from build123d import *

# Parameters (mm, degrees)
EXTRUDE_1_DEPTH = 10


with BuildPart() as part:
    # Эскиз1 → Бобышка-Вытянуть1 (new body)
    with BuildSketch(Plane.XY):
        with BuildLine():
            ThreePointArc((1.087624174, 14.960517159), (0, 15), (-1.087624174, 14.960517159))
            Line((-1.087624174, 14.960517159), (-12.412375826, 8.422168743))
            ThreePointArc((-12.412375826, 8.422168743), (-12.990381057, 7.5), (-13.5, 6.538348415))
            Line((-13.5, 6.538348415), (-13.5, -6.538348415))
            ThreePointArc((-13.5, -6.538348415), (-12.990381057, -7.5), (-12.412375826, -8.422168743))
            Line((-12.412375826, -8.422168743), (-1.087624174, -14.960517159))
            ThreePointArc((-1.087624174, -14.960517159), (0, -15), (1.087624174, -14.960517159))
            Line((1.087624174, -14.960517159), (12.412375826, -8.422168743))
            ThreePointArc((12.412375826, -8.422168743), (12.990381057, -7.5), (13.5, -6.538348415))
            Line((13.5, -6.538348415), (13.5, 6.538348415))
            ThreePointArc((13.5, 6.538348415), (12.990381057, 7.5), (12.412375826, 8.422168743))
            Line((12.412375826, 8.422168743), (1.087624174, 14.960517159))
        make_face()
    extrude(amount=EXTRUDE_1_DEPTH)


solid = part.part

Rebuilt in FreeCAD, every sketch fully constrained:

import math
import FreeCAD as App
import Part
import Sketcher
Q = App.Units.Quantity

doc = App.newDocument("Part")
body = doc.addObject("PartDesign::Body", "Body")

sketch1 = body.newObject("Sketcher::SketchObject", "Sketch")
sketch1.AttachmentSupport = (doc.getObject("XY_Plane"), [""])
sketch1.MapMode = "FlatFace"
sketch1.addGeometry(Part.ArcOfCircle(Part.Circle(App.Vector(0, 0, 0), App.Vector(0, 0, 1), 15), math.radians(85.841933), math.radians(94.158067)), False)
sketch1.addGeometry(Part.LineSegment(App.Vector(-1.087624, 14.960517, 0), App.Vector(-12.412376, 8.422169, 0)), False)
sketch1.addGeometry(Part.ArcOfCircle(Part.Circle(App.Vector(0, 0, 0), App.Vector(0, 0, 1), 15), math.radians(145.841933), math.radians(154.158067)), False)
sketch1.addGeometry(Part.LineSegment(App.Vector(-13.5, 6.538348, 0), App.Vector(-13.5, -6.538348, 0)), False)
sketch1.addGeometry(Part.ArcOfCircle(Part.Circle(App.Vector(0, 0, 0), App.Vector(0, 0, 1), 15), math.radians(-154.158067), math.radians(-145.841933)), False)
sketch1.addGeometry(Part.LineSegment(App.Vector(-12.412376, -8.422169, 0), App.Vector(-1.087624, -14.960517, 0)), False)
sketch1.addGeometry(Part.ArcOfCircle(Part.Circle(App.Vector(0, 0, 0), App.Vector(0, 0, 1), 15), math.radians(-94.158067), math.radians(-85.841933)), False)
sketch1.addGeometry(Part.LineSegment(App.Vector(1.087624, -14.960517, 0), App.Vector(12.412376, -8.422169, 0)), False)
sketch1.addGeometry(Part.ArcOfCircle(Part.Circle(App.Vector(0, 0, 0), App.Vector(0, 0, 1), 15), math.radians(-34.158067), math.radians(-25.841933)), False)
sketch1.addGeometry(Part.LineSegment(App.Vector(13.5, -6.538348, 0), App.Vector(13.5, 6.538348, 0)), False)
sketch1.addGeometry(Part.ArcOfCircle(Part.Circle(App.Vector(0, 0, 0), App.Vector(0, 0, 1), 15), math.radians(25.841933), math.radians(34.158067)), False)
sketch1.addGeometry(Part.LineSegment(App.Vector(12.412376, 8.422169, 0), App.Vector(1.087624, 14.960517, 0)), False)
sketch1.addConstraint(Sketcher.Constraint("Coincident", 0, 2, 1, 1))
sketch1.addConstraint(Sketcher.Constraint("Coincident", 1, 2, 2, 1))
sketch1.addConstraint(Sketcher.Constraint("Coincident", 2, 2, 3, 1))
sketch1.addConstraint(Sketcher.Constraint("Coincident", 3, 2, 4, 1))
sketch1.addConstraint(Sketcher.Constraint("Coincident", 4, 2, 5, 1))
sketch1.addConstraint(Sketcher.Constraint("Coincident", 5, 2, 6, 1))
sketch1.addConstraint(Sketcher.Constraint("Coincident", 6, 2, 7, 1))
sketch1.addConstraint(Sketcher.Constraint("Coincident", 7, 2, 8, 1))
sketch1.addConstraint(Sketcher.Constraint("Coincident", 8, 2, 9, 1))
sketch1.addConstraint(Sketcher.Constraint("Coincident", 9, 2, 10, 1))
sketch1.addConstraint(Sketcher.Constraint("Coincident", 10, 2, 11, 1))
sketch1.addConstraint(Sketcher.Constraint("Coincident", 11, 2, 0, 1))
sketch1.addConstraint(Sketcher.Constraint("Vertical", 3))
sketch1.addConstraint(Sketcher.Constraint("Vertical", 9))
sketch1.addConstraint(Sketcher.Constraint("Coincident", 0, 3, -1, 1))
sketch1.addConstraint(Sketcher.Constraint("Coincident", 2, 3, -1, 1))
sketch1.addConstraint(Sketcher.Constraint("Coincident", 4, 3, -1, 1))
sketch1.addConstraint(Sketcher.Constraint("Coincident", 6, 3, -1, 1))
sketch1.addConstraint(Sketcher.Constraint("Coincident", 8, 3, -1, 1))
sketch1.addConstraint(Sketcher.Constraint("Coincident", 10, 3, -1, 1))
sketch1.addConstraint(Sketcher.Constraint("Equal", 0, 2))
sketch1.addConstraint(Sketcher.Constraint("Equal", 2, 4))
sketch1.addConstraint(Sketcher.Constraint("Equal", 4, 6))
sketch1.addConstraint(Sketcher.Constraint("Equal", 6, 8))
sketch1.addConstraint(Sketcher.Constraint("Equal", 8, 10))
sketch1.addConstraint(Sketcher.Constraint("Parallel", 1, 7))
sketch1.addConstraint(Sketcher.Constraint("Parallel", 5, 11))
sketch1.addConstraint(Sketcher.Constraint("Horizontal", 5, 2, 6, 2))
sketch1.addConstraint(Sketcher.Constraint("Horizontal", 4, 2, 7, 2))
sketch1.addConstraint(Sketcher.Constraint("Horizontal", 3, 2, 8, 2))
sketch1.addConstraint(Sketcher.Constraint("Horizontal", 1, 2, 10, 2))
sketch1.addConstraint(Sketcher.Constraint("Vertical", 1, 2, 4, 2))
sketch1.addConstraint(Sketcher.Constraint("Radius", 0, 15.0))
sketch1.addConstraint(Sketcher.Constraint("Angle", 1, Q("-150 deg")))
sketch1.addConstraint(Sketcher.Constraint("DistanceX", 2, 2, -1, 1, 13.5))
sketch1.addConstraint(Sketcher.Constraint("DistanceX", 4, 2, 6, 2, 13.5))
pad1 = body.newObject("PartDesign::Pad", "Pad")
pad1.Profile = sketch1
pad1.Length = 10

doc.recompute()
